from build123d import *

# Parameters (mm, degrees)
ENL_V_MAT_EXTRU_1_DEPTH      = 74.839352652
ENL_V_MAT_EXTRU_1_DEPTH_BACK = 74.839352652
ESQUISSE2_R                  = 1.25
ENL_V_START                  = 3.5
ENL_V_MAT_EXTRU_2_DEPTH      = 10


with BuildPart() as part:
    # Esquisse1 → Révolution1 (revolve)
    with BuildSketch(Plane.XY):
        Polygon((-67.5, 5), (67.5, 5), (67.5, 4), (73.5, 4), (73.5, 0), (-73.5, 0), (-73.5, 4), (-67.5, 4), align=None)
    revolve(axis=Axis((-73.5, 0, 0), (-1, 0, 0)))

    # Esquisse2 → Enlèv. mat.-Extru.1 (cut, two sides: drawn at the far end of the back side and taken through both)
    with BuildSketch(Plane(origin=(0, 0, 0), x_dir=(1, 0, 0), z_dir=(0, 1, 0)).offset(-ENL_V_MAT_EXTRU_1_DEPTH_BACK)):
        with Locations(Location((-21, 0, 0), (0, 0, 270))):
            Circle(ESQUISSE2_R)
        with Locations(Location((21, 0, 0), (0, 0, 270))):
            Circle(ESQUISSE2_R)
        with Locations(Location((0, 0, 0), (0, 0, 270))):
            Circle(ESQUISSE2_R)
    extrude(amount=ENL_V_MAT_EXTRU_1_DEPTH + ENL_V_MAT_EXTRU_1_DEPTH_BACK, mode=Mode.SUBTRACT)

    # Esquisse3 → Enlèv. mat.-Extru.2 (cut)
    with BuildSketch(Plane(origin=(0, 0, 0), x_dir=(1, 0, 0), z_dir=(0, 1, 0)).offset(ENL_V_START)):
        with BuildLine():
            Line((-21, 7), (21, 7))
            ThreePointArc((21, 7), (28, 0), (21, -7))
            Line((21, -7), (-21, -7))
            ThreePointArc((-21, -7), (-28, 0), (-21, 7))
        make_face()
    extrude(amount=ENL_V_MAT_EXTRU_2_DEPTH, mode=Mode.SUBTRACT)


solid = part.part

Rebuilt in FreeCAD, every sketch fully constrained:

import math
import FreeCAD as App
import Part
import Sketcher
Q = App.Units.Quantity

doc = App.newDocument("Part")
params = doc.addObject("Spreadsheet::Sheet", "Params")
for row, (alias, value) in enumerate([
    ("sketch1_width", "135 mm"),
    ("sketch1_width2", "6 mm"),
    ("sketch1_height", "1 mm"),
    ("sketch1_height2", "4 mm"),
    ("revolution_angle", "360 deg"),
    ("sketch2_diameter", "2.5 mm"),
    ("sketch3_radius", "7 mm"),
    ("sketch3_width", "42 mm"),
    ("pocket2_length", "10 mm"),
], start=1):
    params.set(f"A{row}", alias)
    params.set(f"B{row}", "=" + value)
    params.setAlias(f"B{row}", alias)

body = doc.addObject("PartDesign::Body", "Body")

# Sketch on XY plane
sketch1 = body.newObject("Sketcher::SketchObject", "Sketch")
sketch1.AttachmentSupport = (doc.getObject("XY_Plane"), [""])
sketch1.MapMode = "FlatFace"
sketch1.addGeometry([
    Part.LineSegment(App.Vector(67.5, 5, 0), App.Vector(-67.5, 5, 0)),  # 0
    Part.LineSegment(App.Vector(-67.5, 5, 0), App.Vector(-67.5, 4, 0)),  # 1
    Part.LineSegment(App.Vector(-67.5, 4, 0), App.Vector(-73.5, 4, 0)),  # 2
    Part.LineSegment(App.Vector(-73.5, 4, 0), App.Vector(-73.5, 0, 0)),  # 3
    Part.LineSegment(App.Vector(-73.5, 0, 0), App.Vector(73.5, 0, 0)),  # 4
    Part.LineSegment(App.Vector(73.5, 0, 0), App.Vector(73.5, 4, 0)),  # 5
    Part.LineSegment(App.Vector(73.5, 4, 0), App.Vector(67.5, 4, 0)),  # 6
    Part.LineSegment(App.Vector(67.5, 4, 0), App.Vector(67.5, 5, 0)),  # 7
], False)
sketch1.addConstraint([
    Sketcher.Constraint("Coincident", 0, 2, 1, 1),
    Sketcher.Constraint("Coincident", 1, 2, 2, 1),
    Sketcher.Constraint("Coincident", 2, 2, 3, 1),
    Sketcher.Constraint("Coincident", 3, 2, 4, 1),
    Sketcher.Constraint("Coincident", 4, 2, 5, 1),
    Sketcher.Constraint("Coincident", 5, 2, 6, 1),
    Sketcher.Constraint("Coincident", 6, 2, 7, 1),
    Sketcher.Constraint("Coincident", 7, 2, 0, 1),
    Sketcher.Constraint("Horizontal", 0),
    Sketcher.Constraint("Vertical", 1),
    Sketcher.Constraint("Horizontal", 2),
    Sketcher.Constraint("Vertical", 3),
    Sketcher.Constraint("Horizontal", 4),
    Sketcher.Constraint("Vertical", 5),
    Sketcher.Constraint("Horizontal", 6),
    Sketcher.Constraint("Vertical", 7),
    Sketcher.Constraint("Symmetric", 3, 2, 4, 2, -1, 1),
    Sketcher.Constraint("Symmetric", 1, 2, 6, 2, -2),
    Sketcher.Constraint("DistanceX", 0, 2, 0, 1, Q("135 mm")),
    Sketcher.Constraint("DistanceX", 2, 2, 2, 1, Q("6 mm")),
    Sketcher.Constraint("DistanceY", 1, 2, 1, 1, Q("1 mm")),
    Sketcher.Constraint("DistanceY", 3, 2, 3, 1, Q("4 mm")),
])
sketch1.setExpression("Constraints[18]", "Params.sketch1_width")
sketch1.setExpression("Constraints[19]", "Params.sketch1_width2")
sketch1.setExpression("Constraints[20]", "Params.sketch1_height")
sketch1.setExpression("Constraints[21]", "Params.sketch1_height2")
revolution = body.newObject("PartDesign::Revolution", "Revolution")
revolution.Profile = sketch1
revolution.ReferenceAxis = (sketch1, ["H_Axis"])
revolution.setExpression("Angle", "Params.revolution_angle")

# Sketch on XZ plane
sketch2 = body.newObject("Sketcher::SketchObject", "Sketch001")
sketch2.AttachmentSupport = (doc.getObject("XZ_Plane"), [""])
sketch2.MapMode = "FlatFace"
sketch2.addGeometry([
    Part.Circle(App.Vector(-21, 0, 0), App.Vector(0, 0, 1), 1.2),
    Part.Circle(App.Vector(21, 0, 0), App.Vector(0, 0, 1), 1.2),
    Part.Circle(App.Vector(0, 0, 0), App.Vector(0, 0, 1), 1.2),
], False)
sketch2.addConstraint([
    Sketcher.Constraint("Coincident", 2, 3, -1, 1),
    Sketcher.Constraint("Equal", 0, 1),
    Sketcher.Constraint("Equal", 1, 2),
    Sketcher.Constraint("Symmetric", 0, 3, 1, 3, -1, 1),
    Sketcher.Constraint("PointOnObject", 0, 3, -1),
    Sketcher.Constraint("Diameter", 0, Q("2.5 mm")),
    Sketcher.Constraint("DistanceX", 0, 3, -1, 1, Q("21 mm")),
])
sketch2.setExpression("Constraints[5]", "Params.sketch2_diameter")
pocket1 = body.newObject("PartDesign::Pocket", "Pocket")
pocket1.Profile = sketch2
pocket1.Type = "ThroughAll"
pocket1.Midplane = True

# Sketch on XZ plane
sketch3 = body.newObject("Sketcher::SketchObject", "Sketch002")
sketch3.AttachmentSupport = (doc.getObject("XZ_Plane"), [""])
sketch3.MapMode = "FlatFace"
sketch3.AttachmentOffset = App.Placement(App.Vector(0, 0, -3.5), App.Rotation())
sketch3.addGeometry([
    Part.LineSegment(App.Vector(21, -7, 0), App.Vector(-21, -7, 0)),
    Part.ArcOfCircle(Part.Circle(App.Vector(-21, 0, 0), App.Vector(0, 0, 1), 7), math.radians(90), math.radians(270)),
    Part.LineSegment(App.Vector(-21, 7, 0), App.Vector(21, 7, 0)),
    Part.ArcOfCircle(Part.Circle(App.Vector(21, 0, 0), App.Vector(0, 0, 1), 7), math.radians(-90), math.radians(90)),
], False)
sketch3.addConstraint([
    Sketcher.Constraint("Tangent", 0, 2, 1, 2),
    Sketcher.Constraint("Tangent", 1, 1, 2, 1),
    Sketcher.Constraint("Tangent", 2, 2, 3, 2),
    Sketcher.Constraint("Tangent", 3, 1, 0, 1),
    Sketcher.Constraint("Horizontal", 0),
    Sketcher.Constraint("Horizontal", 2),
    Sketcher.Constraint("Symmetric", 1, 3, 3, 3, -1, 1),
    Sketcher.Constraint("Radius", 1, Q("7 mm")),
    Sketcher.Constraint("DistanceX", 0, 2, 0, 1, Q("42 mm")),
])
sketch3.setExpression("Constraints[7]", "Params.sketch3_radius")
sketch3.setExpression("Constraints[8]", "Params.sketch3_width")
pocket2 = body.newObject("PartDesign::Pocket", "Pocket001")
pocket2.Profile = sketch3
pocket2.setExpression("Length", "Params.pocket2_length")

doc.recompute()
